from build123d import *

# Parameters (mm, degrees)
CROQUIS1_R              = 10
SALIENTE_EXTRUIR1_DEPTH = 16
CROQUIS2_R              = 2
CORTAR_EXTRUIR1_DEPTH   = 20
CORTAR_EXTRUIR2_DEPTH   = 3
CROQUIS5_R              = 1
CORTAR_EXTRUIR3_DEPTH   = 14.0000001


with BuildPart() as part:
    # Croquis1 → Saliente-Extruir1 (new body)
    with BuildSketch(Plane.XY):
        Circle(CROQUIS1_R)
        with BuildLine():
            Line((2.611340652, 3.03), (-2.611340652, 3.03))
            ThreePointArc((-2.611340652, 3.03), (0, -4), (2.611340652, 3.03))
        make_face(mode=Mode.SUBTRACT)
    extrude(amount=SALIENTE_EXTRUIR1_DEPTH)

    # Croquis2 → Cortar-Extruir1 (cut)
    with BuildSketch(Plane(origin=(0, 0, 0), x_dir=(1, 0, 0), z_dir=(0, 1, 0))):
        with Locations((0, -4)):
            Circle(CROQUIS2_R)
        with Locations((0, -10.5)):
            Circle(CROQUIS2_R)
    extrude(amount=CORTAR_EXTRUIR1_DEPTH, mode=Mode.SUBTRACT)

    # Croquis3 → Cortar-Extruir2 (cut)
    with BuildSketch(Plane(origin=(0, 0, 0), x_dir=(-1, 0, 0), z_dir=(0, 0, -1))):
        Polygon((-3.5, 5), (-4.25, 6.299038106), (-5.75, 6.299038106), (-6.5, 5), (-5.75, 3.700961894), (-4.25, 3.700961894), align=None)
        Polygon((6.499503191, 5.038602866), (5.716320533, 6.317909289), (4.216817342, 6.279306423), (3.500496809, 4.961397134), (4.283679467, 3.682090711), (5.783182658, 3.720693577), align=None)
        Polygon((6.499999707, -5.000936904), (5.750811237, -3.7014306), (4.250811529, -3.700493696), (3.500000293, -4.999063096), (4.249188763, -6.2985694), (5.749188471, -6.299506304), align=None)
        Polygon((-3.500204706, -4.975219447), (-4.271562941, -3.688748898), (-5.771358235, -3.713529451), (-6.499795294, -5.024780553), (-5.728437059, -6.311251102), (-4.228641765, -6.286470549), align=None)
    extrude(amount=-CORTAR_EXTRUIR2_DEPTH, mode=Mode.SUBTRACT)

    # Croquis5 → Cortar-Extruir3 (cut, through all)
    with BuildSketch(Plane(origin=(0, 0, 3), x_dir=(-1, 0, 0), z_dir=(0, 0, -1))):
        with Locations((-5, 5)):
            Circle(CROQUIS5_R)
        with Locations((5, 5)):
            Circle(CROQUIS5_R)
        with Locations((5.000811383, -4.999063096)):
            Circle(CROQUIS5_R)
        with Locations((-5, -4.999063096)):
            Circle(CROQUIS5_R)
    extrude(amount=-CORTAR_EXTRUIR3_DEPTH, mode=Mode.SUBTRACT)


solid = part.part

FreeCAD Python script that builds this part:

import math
import FreeCAD as App
import Part
import Sketcher
from FreeCAD import Vector
Q = App.Units.Quantity


def add_polygon(sketch, points):
    """Adds a closed chain of lines whose ends are joined by coincident constraints."""
    first, n = sketch.GeometryCount, len(points)
    for a, b in zip(points, points[1:] + points[:1]):
        sketch.addGeometry(Part.LineSegment(App.Vector(*a, 0), App.Vector(*b, 0)), False)
    for i in range(n):
        sketch.addConstraint(Sketcher.Constraint("Coincident", first + i, 2, first + (i + 1) % n, 1))

doc = App.newDocument("Part")
body = doc.addObject("PartDesign::Body", "Body")

sketch1 = doc.addObject("Sketcher::SketchObject", "Sketch")
body.addObject(sketch1)
sketch1.AttachmentSupport = (doc.XY_Plane, [""])
sketch1.MapMode = "FlatFace"
sketch1.addGeometry([
    Part.Circle(Vector(0, 0, 0), Vector(0, 0, 1), 10),
    Part.LineSegment(Vector(-2.6, 3, 0), Vector(2.6, 3, 0)),
    Part.ArcOfCircle(Part.Circle(Vector(0, 0, 0), Vector(0, 0, 1), 4), math.radians(131), math.radians(409)),
], False)
sketch1.addConstraint([
    Sketcher.Constraint("Coincident", 1, 1, 2, 1),
    Sketcher.Constraint("Coincident", 2, 2, 1, 2),
    Sketcher.Constraint("Horizontal", 1),
    Sketcher.Constraint("Coincident", 0, 3, -1, 1),
    Sketcher.Constraint("Coincident", 2, 3, -1, 1),
    Sketcher.Constraint("Diameter", 0, 20.0),
    Sketcher.Constraint("Radius", 2, 4.0),
    Sketcher.Constraint("DistanceY", -1, 1, 1, 1, 3.03),
])
pad1 = doc.addObject("PartDesign::Pad", "Pad")
body.addObject(pad1)
pad1.Profile = sketch1
pad1.Length = 16

sketch2 = doc.addObject("Sketcher::SketchObject", "Sketch001")
body.addObject(sketch2)
sketch2.AttachmentSupport = (doc.XZ_Plane, [""])
sketch2.MapMode = "FlatFace"
sketch2.addGeometry([
    Part.Circle(Vector(0, 4, 0), Vector(0, 0, 1), 2),
    Part.Circle(Vector(0, 10.5, 0), Vector(0, 0, 1), 2),
], False)
sketch2.addConstraint([
    Sketcher.Constraint("Equal", 0, 1),
    Sketcher.Constraint("PointOnObject", 0, 3, -2),
    Sketcher.Constraint("PointOnObject", 1, 3, -2),
    Sketcher.Constraint("Diameter", 0, 4.0),
    Sketcher.Constraint("DistanceY", -1, 1, 0, 3, 4.0),
    Sketcher.Constraint("DistanceY", -1, 1, 1, 3, 10.5),
])
pocket1 = doc.addObject("PartDesign::Pocket", "Pocket")
body.addObject(pocket1)
pocket1.Profile = sketch2
pocket1.Length = 20

sketch3 = doc.addObject("Sketcher::SketchObject", "Sketch002")
body.addObject(sketch3)
sketch3.AttachmentSupport = (doc.XY_Plane, [""])
sketch3.MapMode = "FlatFace"
add_polygon(sketch3, [(3.5, 5), (4.2, 6.3), (5.8, 6.3), (6.5, 5), (5.8, 3.7), (4.2, 3.7)])
add_polygon(sketch3, [(-6.5, 5), (-5.7, 6.3), (-4.2, 6.3), (-3.5, 5), (-4.3, 3.7), (-5.8, 3.7)])
add_polygon(sketch3, [(-6.5, -5), (-5.8, -3.7), (-4.3, -3.7), (-3.5, -5), (-4.2, -6.3), (-5.7, -6.3)])
add_polygon(sketch3, [(3.5, -5), (4.3, -3.7), (5.8, -3.7), (6.5, -5), (5.7, -6.3), (4.2, -6.3)])
sketch3.addConstraint([
    Sketcher.Constraint("Horizontal", 1),
    Sketcher.Constraint("Horizontal", 4),
    Sketcher.Constraint("Parallel", 0, 3),
    Sketcher.Constraint("Parallel", 2, 5),
    Sketcher.Constraint("Parallel", 6, 9),
    Sketcher.Constraint("Parallel", 7, 10),
    Sketcher.Constraint("Parallel", 8, 11),
    Sketcher.Constraint("Parallel", 12, 15),
    Sketcher.Constraint("Parallel", 13, 16),
    Sketcher.Constraint("Parallel", 14, 17),
    Sketcher.Constraint("Parallel", 18, 21),
    Sketcher.Constraint("Parallel", 19, 22),
    Sketcher.Constraint("Parallel", 20, 23),
    Sketcher.Constraint("Horizontal", 2, 2, 5, 2),
    Sketcher.Constraint("Vertical", 1, 2, 3, 2),
    Sketcher.Constraint("Vertical", 0, 2, 4, 2),
    Sketcher.Constraint("Equal", 5, 6),
    Sketcher.Constraint("Equal", 6, 7),
    Sketcher.Constraint("Equal", 7, 8),
    Sketcher.Constraint("Equal", 8, 9),
    Sketcher.Constraint("Equal", 11, 12),
    Sketcher.Constraint("Equal", 12, 13),
    Sketcher.Constraint("Equal", 13, 14),
    Sketcher.Constraint("Equal", 14, 15),
    Sketcher.Constraint("Equal", 17, 18),
    Sketcher.Constraint("Equal", 18, 19),
    Sketcher.Constraint("Equal", 19, 20),
    Sketcher.Constraint("Equal", 20, 21),
    Sketcher.Constraint("Angle", 0, Q("60 deg")),
    Sketcher.Constraint("DistanceX", 1, 1, 1, 2, 1.5),
    Sketcher.Constraint("DistanceY", -1, 1, 2, 2, 5.0),
    Sketcher.Constraint("DistanceX", 5, 2, 2, 2, 3.0),
    Sketcher.Constraint("DistanceX", 17, 2, 14, 2, 2.999999),
    Sketcher.Constraint("DistanceX", -1, 1, 2, 2, 6.5),
    Sketcher.Constraint("DistanceX", 14, 2, -1, 1, 3.5),
    Sketcher.Constraint("DistanceY", 16, 2, 10, 2, 10.0202),
    Sketcher.Constraint("DistanceX", 6, 2, -1, 1, 5.716321),
    Sketcher.Constraint("DistanceY", -1, 1, 6, 2, 6.317909),
    Sketcher.Constraint("DistanceX", 9, 2, -1, 1, 4.283679),
    Sketcher.Constraint("DistanceY", -1, 1, 9, 2, 3.682091),
    Sketcher.Constraint("DistanceX", 12, 2, -1, 1, 5.750811),
    Sketcher.Constraint("DistanceY", 12, 2, -1, 1, 3.701431),
    Sketcher.Constraint("DistanceY", 15, 2, -1, 1, 6.298569),
    Sketcher.Constraint("DistanceY", 18, 2, -1, 1, 3.688749),
    Sketcher.Constraint("DistanceX", -1, 1, 19, 2, 5.771358),
    Sketcher.Constraint("DistanceY", 19, 2, -1, 1, 3.713529),
    Sketcher.Constraint("DistanceY", 20, 2, -1, 1, 5.024781),
    Sketcher.Constraint("DistanceY", 21, 2, -1, 1, 6.311251),
])
pocket2 = doc.addObject("PartDesign::Pocket", "Pocket001")
body.addObject(pocket2)
pocket2.Profile = sketch3
pocket2.Length = 3
pocket2.Reversed = True

sketch4 = doc.addObject("Sketcher::SketchObject", "Sketch003")
body.addObject(sketch4)
sketch4.AttachmentSupport = (doc.XY_Plane, [""])
sketch4.MapMode = "FlatFace"
sketch4.AttachmentOffset = App.Placement(Vector(0, 0, 3), App.Rotation())
sketch4.addGeometry([
    Part.Circle(Vector(5, 5, 0), Vector(0, 0, 1), 1),
    Part.Circle(Vector(-5, 5, 0), Vector(0, 0, 1), 1),
    Part.Circle(Vector(-5, -5, 0), Vector(0, 0, 1), 1),
    Part.Circle(Vector(5, -5, 0), Vector(0, 0, 1), 1),
], False)
sketch4.addConstraint([
    Sketcher.Constraint("Equal", 0, 1),
    Sketcher.Constraint("Equal", 1, 2),
    Sketcher.Constraint("Equal", 2, 3),
    Sketcher.Constraint("Symmetric", 0, 3, 1, 3, -2),
    Sketcher.Constraint("Horizontal", 2, 3, 3, 3),
    Sketcher.Constraint("Vertical", 0, 3, 3, 3),
    Sketcher.Constraint("Diameter", 0, 2.0),
    Sketcher.Constraint("DistanceX", -1, 1, 0, 3, 5.0),
    Sketcher.Constraint("DistanceY", -1, 1, 0, 3, 5.0),
    Sketcher.Constraint("DistanceX", 2, 3, -1, 1, 5.000811),
    Sketcher.Constraint("DistanceY", 2, 3, -1, 1, 4.999063),
])
pocket3 = doc.addObject("PartDesign::Pocket", "Pocket002")
body.addObject(pocket3)
pocket3.Profile = sketch4
pocket3.Type = "ThroughAll"
pocket3.Reversed = True

doc.recompute()
